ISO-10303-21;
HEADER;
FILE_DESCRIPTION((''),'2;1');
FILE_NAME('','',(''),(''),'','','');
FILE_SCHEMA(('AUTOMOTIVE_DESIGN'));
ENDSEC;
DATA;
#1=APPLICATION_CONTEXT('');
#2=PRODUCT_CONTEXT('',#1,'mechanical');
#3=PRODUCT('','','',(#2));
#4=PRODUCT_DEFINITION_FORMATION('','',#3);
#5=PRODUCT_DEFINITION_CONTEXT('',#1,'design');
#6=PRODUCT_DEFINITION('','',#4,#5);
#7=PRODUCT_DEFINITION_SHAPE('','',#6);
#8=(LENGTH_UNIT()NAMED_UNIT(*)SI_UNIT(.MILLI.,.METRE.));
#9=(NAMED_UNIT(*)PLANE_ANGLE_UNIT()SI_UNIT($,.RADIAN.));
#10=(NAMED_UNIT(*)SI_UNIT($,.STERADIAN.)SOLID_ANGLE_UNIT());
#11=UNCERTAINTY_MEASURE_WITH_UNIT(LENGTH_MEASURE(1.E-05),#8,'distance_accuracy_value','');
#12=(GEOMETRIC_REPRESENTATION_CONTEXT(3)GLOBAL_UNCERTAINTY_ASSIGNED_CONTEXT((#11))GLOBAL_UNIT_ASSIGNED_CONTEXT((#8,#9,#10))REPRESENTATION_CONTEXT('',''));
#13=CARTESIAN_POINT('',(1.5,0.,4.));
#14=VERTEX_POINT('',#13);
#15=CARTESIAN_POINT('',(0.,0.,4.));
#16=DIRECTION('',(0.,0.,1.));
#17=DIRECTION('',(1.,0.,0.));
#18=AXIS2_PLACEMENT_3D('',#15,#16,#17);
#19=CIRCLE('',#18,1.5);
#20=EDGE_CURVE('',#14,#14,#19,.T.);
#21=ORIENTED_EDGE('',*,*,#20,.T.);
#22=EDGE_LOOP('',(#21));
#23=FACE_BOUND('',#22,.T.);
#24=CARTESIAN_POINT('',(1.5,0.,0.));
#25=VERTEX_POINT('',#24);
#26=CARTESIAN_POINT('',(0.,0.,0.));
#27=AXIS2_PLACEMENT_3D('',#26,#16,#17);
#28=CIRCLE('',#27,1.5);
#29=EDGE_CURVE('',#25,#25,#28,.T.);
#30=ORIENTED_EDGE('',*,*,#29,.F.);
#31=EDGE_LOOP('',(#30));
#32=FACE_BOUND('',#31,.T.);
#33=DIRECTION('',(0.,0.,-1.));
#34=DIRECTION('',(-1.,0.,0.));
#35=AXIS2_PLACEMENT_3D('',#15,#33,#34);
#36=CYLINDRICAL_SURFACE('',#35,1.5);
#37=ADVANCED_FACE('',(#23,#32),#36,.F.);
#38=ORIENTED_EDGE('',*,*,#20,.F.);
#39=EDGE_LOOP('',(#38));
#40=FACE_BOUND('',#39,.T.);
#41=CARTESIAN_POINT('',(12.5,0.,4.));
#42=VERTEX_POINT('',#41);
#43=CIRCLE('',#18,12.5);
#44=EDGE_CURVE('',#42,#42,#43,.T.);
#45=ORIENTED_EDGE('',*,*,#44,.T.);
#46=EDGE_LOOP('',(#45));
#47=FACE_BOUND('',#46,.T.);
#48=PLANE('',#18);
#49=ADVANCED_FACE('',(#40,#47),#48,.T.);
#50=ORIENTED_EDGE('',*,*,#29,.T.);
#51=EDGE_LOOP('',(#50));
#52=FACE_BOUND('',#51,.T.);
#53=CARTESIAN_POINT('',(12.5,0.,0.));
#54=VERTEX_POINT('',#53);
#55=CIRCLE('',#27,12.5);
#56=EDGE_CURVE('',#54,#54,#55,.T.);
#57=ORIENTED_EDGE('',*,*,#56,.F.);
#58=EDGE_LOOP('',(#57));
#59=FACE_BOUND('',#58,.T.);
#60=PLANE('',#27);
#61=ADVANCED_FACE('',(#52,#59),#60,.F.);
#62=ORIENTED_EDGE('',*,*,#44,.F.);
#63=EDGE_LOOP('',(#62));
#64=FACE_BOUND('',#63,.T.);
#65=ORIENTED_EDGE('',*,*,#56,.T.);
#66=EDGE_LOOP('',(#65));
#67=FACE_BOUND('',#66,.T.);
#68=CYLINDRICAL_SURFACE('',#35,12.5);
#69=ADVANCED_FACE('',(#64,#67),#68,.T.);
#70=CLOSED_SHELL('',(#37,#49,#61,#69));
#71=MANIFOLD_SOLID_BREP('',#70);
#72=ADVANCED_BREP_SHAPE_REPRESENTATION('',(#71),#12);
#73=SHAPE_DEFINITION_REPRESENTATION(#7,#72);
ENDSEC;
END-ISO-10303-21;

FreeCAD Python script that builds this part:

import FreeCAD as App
import Part
import Sketcher

doc = App.newDocument("Part")
params = doc.addObject("Spreadsheet::Sheet", "Params")
for row, (alias, value) in enumerate([
    ("sketch1_diameter", "25 mm"),
    ("sketch1_diameter2", "3 mm"),
    ("pad1_length", "4 mm"),
], start=1):
    params.set(f"A{row}", alias)
    params.set(f"B{row}", "=" + value)
    params.setAlias(f"B{row}", alias)

body = doc.addObject("PartDesign::Body", "Body")

# Sketch on XY plane
sketch1 = body.newObject("Sketcher::SketchObject", "Sketch")
sketch1.AttachmentSupport = (doc.getObject("XY_Plane"), [""])
sketch1.MapMode = "FlatFace"
sketch1.addGeometry([
    Part.Circle(App.Vector(0, 0, 0), App.Vector(0, 0, 1), 12.5),
    Part.Circle(App.Vector(0, 0, 0), App.Vector(0, 0, 1), 1.5),
], False)
sketch1.addConstraint([
    Sketcher.Constraint("Coincident", 0, 3, -1, 1),
    Sketcher.Constraint("Coincident", 1, 3, -1, 1),
    Sketcher.Constraint("Diameter", 0, 25.0),
    Sketcher.Constraint("Diameter", 1, 3.0),
])
sketch1.setExpression("Constraints[2]", "Params.sketch1_diameter")
sketch1.setExpression("Constraints[3]", "Params.sketch1_diameter2")
pad1 = body.newObject("PartDesign::Pad", "Pad")
pad1.Profile = sketch1
pad1.setExpression("Length", "Params.pad1_length")

doc.recompute()
